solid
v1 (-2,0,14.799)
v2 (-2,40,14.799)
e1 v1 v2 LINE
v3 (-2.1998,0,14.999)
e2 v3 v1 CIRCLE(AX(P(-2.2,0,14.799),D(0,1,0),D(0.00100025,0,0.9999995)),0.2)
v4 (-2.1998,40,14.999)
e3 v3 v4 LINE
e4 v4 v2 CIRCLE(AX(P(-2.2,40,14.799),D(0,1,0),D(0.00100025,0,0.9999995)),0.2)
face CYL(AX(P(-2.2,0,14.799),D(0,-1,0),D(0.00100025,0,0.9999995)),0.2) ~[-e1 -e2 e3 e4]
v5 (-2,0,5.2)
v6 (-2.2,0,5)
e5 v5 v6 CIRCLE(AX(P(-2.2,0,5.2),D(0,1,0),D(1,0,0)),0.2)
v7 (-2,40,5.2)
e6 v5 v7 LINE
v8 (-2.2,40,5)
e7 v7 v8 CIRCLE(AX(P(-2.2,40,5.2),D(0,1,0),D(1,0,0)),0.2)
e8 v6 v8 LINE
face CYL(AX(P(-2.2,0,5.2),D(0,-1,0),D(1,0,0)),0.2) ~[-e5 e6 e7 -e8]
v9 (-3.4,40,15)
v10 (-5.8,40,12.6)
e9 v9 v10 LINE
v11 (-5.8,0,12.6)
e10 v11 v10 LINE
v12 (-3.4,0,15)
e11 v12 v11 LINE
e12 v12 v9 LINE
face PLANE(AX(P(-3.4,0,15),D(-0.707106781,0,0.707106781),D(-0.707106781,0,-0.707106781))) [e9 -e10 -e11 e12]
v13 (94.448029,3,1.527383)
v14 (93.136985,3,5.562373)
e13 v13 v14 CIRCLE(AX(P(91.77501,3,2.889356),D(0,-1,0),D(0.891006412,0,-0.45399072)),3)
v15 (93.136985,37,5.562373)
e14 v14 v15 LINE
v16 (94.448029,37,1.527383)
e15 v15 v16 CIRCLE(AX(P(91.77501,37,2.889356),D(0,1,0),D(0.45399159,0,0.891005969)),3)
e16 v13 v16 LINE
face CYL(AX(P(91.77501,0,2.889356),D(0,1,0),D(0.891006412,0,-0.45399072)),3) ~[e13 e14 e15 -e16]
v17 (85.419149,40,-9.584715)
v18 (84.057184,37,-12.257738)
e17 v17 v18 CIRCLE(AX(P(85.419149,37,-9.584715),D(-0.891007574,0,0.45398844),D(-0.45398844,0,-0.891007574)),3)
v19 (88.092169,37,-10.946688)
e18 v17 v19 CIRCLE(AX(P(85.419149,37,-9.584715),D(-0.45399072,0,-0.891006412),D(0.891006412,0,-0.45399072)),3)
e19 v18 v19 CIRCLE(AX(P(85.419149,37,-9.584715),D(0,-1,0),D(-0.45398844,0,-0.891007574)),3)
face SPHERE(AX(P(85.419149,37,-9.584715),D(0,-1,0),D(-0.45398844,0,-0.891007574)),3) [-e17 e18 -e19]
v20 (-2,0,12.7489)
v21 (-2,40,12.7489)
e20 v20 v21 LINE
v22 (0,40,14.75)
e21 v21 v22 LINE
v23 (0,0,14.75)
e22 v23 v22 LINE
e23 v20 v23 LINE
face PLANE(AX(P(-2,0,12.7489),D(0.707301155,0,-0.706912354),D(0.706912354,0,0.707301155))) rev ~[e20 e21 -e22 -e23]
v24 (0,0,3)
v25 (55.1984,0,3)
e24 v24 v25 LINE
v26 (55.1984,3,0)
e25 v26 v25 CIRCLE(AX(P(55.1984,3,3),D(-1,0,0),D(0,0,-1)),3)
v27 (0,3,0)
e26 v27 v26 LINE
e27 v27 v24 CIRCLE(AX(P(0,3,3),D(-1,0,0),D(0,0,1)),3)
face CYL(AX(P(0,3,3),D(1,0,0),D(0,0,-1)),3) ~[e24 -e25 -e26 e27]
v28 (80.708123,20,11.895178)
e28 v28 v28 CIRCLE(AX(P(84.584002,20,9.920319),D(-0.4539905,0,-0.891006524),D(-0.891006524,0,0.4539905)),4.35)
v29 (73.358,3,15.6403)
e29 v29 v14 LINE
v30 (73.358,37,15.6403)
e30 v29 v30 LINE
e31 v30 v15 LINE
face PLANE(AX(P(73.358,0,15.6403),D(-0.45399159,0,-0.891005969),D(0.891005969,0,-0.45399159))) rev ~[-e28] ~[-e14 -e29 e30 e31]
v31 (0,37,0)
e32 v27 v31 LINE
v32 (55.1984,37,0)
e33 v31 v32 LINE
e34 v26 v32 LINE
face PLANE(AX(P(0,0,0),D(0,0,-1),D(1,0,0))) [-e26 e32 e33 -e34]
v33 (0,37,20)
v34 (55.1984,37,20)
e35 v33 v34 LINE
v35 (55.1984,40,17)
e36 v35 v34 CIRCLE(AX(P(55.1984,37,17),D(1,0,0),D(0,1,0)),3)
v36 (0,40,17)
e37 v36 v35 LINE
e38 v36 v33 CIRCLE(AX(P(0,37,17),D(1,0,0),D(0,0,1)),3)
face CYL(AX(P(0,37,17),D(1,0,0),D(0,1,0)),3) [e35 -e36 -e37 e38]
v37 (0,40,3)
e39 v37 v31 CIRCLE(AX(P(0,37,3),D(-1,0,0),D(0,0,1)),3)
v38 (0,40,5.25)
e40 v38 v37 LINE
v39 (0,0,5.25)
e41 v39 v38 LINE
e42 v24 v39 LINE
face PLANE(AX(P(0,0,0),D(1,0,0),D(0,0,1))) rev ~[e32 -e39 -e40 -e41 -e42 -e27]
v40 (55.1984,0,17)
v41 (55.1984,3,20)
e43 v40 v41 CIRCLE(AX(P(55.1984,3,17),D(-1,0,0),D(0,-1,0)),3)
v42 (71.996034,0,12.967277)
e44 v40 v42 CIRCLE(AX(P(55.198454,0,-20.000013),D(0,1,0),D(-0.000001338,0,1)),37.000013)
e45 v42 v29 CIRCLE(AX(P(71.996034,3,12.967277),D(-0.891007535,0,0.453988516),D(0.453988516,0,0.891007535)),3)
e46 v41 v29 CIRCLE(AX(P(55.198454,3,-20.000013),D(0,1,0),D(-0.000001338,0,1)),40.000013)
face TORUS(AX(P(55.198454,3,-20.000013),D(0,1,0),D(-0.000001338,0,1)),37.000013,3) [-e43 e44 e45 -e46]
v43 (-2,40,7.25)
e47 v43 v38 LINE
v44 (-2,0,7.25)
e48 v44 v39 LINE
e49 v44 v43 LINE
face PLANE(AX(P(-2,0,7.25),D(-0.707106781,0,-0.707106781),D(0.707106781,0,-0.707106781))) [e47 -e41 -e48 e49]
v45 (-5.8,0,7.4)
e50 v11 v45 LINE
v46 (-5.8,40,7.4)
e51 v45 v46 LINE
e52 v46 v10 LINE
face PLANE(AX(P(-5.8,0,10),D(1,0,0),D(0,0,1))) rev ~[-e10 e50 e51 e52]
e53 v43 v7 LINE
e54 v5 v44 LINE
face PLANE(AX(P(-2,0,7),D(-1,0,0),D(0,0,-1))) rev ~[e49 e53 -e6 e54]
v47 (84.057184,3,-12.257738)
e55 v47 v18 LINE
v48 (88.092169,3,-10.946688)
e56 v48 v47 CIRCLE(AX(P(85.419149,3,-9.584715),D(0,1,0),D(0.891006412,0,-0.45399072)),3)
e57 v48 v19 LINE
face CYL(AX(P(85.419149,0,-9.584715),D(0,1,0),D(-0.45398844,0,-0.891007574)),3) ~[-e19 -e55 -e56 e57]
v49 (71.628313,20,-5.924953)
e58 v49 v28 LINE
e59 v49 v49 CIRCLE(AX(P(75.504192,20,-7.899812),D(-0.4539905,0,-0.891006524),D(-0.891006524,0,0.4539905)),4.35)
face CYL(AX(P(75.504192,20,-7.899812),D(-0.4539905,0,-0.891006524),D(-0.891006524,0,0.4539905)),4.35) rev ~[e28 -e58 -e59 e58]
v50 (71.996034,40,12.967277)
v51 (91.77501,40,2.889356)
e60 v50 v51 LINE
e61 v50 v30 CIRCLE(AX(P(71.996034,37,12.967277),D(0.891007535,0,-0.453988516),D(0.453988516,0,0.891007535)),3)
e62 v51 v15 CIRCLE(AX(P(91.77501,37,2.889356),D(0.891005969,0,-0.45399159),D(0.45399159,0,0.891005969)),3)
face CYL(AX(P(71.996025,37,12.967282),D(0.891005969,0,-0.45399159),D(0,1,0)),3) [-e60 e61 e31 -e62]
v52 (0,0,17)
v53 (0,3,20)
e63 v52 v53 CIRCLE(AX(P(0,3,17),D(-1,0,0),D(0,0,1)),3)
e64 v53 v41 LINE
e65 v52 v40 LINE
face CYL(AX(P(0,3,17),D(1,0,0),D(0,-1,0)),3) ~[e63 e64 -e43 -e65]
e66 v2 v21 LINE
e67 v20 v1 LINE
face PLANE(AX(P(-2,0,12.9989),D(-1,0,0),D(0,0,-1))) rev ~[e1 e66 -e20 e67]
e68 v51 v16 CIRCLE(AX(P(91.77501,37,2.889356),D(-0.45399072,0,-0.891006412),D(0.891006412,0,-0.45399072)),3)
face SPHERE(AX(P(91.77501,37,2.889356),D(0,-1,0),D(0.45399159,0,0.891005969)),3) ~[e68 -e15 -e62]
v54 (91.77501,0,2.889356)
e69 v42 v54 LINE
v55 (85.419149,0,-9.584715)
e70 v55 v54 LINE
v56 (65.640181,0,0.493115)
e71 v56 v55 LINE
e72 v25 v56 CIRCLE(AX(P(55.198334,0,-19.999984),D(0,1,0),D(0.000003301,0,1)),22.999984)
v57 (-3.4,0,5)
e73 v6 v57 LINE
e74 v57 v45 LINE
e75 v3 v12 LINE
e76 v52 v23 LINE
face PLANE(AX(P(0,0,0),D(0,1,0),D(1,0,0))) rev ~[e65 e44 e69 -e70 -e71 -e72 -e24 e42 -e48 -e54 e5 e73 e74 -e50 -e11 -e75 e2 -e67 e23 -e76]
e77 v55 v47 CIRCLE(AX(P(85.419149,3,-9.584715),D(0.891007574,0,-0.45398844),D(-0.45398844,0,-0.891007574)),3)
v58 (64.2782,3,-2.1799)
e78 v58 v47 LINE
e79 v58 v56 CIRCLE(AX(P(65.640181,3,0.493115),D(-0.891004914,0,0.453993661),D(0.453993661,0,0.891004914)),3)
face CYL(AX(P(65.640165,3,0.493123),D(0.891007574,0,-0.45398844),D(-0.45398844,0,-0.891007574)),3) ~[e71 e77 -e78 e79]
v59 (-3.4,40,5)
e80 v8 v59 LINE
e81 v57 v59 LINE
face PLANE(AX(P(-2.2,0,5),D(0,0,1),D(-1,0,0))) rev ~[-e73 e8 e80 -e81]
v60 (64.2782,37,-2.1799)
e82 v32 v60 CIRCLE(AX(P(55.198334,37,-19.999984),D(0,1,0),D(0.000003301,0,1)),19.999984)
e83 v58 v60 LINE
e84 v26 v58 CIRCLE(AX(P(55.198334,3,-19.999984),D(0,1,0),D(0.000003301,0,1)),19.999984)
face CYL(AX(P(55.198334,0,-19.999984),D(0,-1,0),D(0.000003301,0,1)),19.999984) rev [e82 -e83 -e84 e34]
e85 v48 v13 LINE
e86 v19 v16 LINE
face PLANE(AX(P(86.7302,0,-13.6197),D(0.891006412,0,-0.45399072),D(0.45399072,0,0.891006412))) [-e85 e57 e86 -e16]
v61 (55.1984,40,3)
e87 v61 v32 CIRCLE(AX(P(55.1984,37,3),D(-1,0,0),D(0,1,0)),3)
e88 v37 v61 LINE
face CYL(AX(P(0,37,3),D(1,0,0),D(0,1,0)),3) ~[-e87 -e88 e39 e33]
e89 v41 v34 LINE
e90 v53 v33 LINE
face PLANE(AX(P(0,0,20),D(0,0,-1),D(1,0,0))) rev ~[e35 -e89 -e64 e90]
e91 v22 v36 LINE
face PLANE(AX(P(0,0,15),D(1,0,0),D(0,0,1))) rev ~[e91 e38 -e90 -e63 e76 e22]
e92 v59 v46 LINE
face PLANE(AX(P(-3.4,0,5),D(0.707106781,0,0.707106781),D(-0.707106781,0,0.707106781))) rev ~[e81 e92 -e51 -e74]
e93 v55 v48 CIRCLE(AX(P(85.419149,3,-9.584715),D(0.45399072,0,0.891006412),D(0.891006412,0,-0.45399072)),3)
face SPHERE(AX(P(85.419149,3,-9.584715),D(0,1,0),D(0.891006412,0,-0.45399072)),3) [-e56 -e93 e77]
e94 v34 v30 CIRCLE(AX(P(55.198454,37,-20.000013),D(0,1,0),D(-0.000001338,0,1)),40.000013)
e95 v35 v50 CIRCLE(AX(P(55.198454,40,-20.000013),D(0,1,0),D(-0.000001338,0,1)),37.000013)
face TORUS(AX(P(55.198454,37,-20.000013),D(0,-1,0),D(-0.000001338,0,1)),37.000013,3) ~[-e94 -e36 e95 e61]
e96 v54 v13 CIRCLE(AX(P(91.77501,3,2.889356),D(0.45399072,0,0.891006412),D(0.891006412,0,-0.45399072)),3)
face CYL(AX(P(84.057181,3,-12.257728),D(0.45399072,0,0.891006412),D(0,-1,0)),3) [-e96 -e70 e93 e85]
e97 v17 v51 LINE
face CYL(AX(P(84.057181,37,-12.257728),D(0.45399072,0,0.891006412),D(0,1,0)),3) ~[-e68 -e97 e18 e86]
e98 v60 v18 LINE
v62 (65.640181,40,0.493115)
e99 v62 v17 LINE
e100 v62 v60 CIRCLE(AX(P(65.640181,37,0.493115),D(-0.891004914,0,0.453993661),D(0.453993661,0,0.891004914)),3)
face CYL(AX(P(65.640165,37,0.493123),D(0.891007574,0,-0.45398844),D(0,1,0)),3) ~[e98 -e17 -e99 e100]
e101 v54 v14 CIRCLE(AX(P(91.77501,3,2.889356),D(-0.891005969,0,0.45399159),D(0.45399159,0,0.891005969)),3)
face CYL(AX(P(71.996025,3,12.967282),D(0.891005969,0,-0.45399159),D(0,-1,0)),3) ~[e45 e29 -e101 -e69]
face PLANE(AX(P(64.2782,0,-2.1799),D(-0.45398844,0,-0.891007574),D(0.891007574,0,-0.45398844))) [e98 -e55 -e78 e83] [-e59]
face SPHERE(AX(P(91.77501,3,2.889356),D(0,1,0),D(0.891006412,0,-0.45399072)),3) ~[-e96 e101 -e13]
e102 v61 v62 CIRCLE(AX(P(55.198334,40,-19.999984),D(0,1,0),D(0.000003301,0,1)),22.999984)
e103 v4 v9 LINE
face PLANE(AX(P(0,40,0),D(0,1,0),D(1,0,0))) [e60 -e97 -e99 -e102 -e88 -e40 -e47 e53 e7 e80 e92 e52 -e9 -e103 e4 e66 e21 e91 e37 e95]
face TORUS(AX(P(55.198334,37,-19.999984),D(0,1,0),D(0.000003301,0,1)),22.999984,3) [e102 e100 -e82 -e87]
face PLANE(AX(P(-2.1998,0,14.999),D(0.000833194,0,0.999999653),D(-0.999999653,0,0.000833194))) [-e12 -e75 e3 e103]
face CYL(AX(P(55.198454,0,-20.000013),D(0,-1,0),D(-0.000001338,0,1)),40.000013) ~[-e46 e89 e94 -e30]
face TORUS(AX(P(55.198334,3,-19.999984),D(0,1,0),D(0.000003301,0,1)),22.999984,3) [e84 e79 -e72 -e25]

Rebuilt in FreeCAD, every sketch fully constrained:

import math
import FreeCAD as App
import Part
import Sketcher

V = App.Vector
Q = App.Units.Quantity


def edges_at(feature, points):
    """Names of the edges that pass closest to the given points."""
    edges = feature.Shape.Edges
    near = lambda p: min(range(len(edges)), key=lambda i: edges[i].distToShape(Part.Vertex(*p))[0])
    return sorted({f"Edge{near(p) + 1}" for p in points})

doc = App.newDocument("Part")
body = doc.addObject("PartDesign::Body", "Body")

# Sketch on XZ plane
sketch1 = doc.addObject("Sketcher::SketchObject", "Sketch")
body.addObject(sketch1)
sketch1.AttachmentSupport = (doc.XZ_Plane, [""])
sketch1.MapMode = "FlatFace"
sketch1.addGeometry([
    Part.LineSegment(V(55.2, 0, 0), V(0, 0, 0)),  # 0
    Part.LineSegment(V(0, 0, 0), V(0, 5.25, 0)),  # 1
    Part.LineSegment(V(0, 5.25, 0), V(-2, 7.25, 0)),  # 2
    Part.LineSegment(V(-2, 7.25, 0), V(-2, 5.2, 0)),  # 3
    Part.ArcOfCircle(Part.Circle(V(-2.2, 5.2, 0), V(0, 0, 1), 0.2), math.radians(-90), math.radians(0)),  # 4
    Part.LineSegment(V(-2.2, 5, 0), V(-3.4, 5, 0)),  # 5
    Part.LineSegment(V(-3.4, 5, 0), V(-5.8, 7.4, 0)),  # 6
    Part.LineSegment(V(-5.8, 7.4, 0), V(-5.8, 12.6, 0)),  # 7
    Part.LineSegment(V(-5.8, 12.6, 0), V(-3.4, 15, 0)),  # 8
    Part.LineSegment(V(-3.4, 15, 0), V(-2.2, 15, 0)),  # 9
    Part.ArcOfCircle(Part.Circle(V(-2.2, 14.8, 0), V(0, 0, 1), 0.2), math.radians(0), math.radians(90)),  # 10
    Part.LineSegment(V(-2, 14.8, 0), V(-2, 12.75, 0)),  # 11
    Part.LineSegment(V(-2, 12.75, 0), V(0, 14.75, 0)),  # 12
    Part.LineSegment(V(0, 14.75, 0), V(0, 20, 0)),  # 13
    Part.LineSegment(V(0, 20, 0), V(55.2, 20, 0)),  # 14
    Part.ArcOfCircle(Part.Circle(V(55.2, -20, 0), V(0, 0, 1), 40), math.radians(63), math.radians(90)),  # 15
    Part.LineSegment(V(73.36, 15.64, 0), V(95.81, 4.2, 0)),  # 16
    Part.LineSegment(V(95.81, 4.2, 0), V(86.73, -13.62, 0)),  # 17
    Part.LineSegment(V(86.73, -13.62, 0), V(64.28, -2.18, 0)),  # 18
    Part.ArcOfCircle(Part.Circle(V(55.2, -20, 0), V(0, 0, 1), 20), math.radians(63), math.radians(90)),  # 19
], False)
sketch1.addConstraint([
    Sketcher.Constraint("Coincident", 0, 2, 1, 1),
    Sketcher.Constraint("Coincident", 1, 2, 2, 1),
    Sketcher.Constraint("Coincident", 2, 2, 3, 1),
    Sketcher.Constraint("Tangent", 3, 2, 4, 2),
    Sketcher.Constraint("Tangent", 4, 1, 5, 1),
    Sketcher.Constraint("Coincident", 5, 2, 6, 1),
    Sketcher.Constraint("Coincident", 6, 2, 7, 1),
    Sketcher.Constraint("Coincident", 7, 2, 8, 1),
    Sketcher.Constraint("Coincident", 8, 2, 9, 1),
    Sketcher.Constraint("Tangent", 9, 2, 10, 2),
    Sketcher.Constraint("Tangent", 10, 1, 11, 1),
    Sketcher.Constraint("Coincident", 11, 2, 12, 1),
    Sketcher.Constraint("Coincident", 12, 2, 13, 1),
    Sketcher.Constraint("Coincident", 13, 2, 14, 1),
    Sketcher.Constraint("Tangent", 14, 2, 15, 2),
    Sketcher.Constraint("Tangent", 15, 1, 16, 1),
    Sketcher.Constraint("Coincident", 16, 2, 17, 1),
    Sketcher.Constraint("Coincident", 17, 2, 18, 1),
    Sketcher.Constraint("Tangent", 18, 2, 19, 1),
    Sketcher.Constraint("Tangent", 19, 2, 0, 1),
    Sketcher.Constraint("Horizontal", 0),
    Sketcher.Constraint("Vertical", 1),
    Sketcher.Constraint("Vertical", 3),
    Sketcher.Constraint("Horizontal", 5),
    Sketcher.Constraint("Vertical", 7),
    Sketcher.Constraint("Vertical", 11),
    Sketcher.Constraint("Vertical", 13),
    Sketcher.Constraint("Horizontal", 14),
    Sketcher.Constraint("Coincident", 0, 2, -1, 1),
    Sketcher.Constraint("Coincident", 19, 3, 15, 3),
    Sketcher.Constraint("Equal", 4, 10),
    Sketcher.Constraint("PointOnObject", 12, 2, -2),
    Sketcher.Constraint("Parallel", 2, 6),
    Sketcher.Constraint("Perpendicular", 6, 8),
    Sketcher.Constraint("Parallel", 8, 12),
    Sketcher.Constraint("Perpendicular", 16, 17),
    Sketcher.Constraint("Perpendicular", 17, 18),
    Sketcher.Constraint("Vertical", 4, 3, 10, 3),
    Sketcher.Constraint("Vertical", 5, 2, 8, 2),
    Sketcher.Constraint("Vertical", 4, 1, 9, 2),
    Sketcher.Constraint("Equal", 3, 11),
    Sketcher.Constraint("Equal", 1, 13),
    Sketcher.Constraint("Equal", 6, 8),
    Sketcher.Constraint("Radius", 15, Q("40 mm")),
    Sketcher.Constraint("Radius", 19, Q("20 mm")),
    Sketcher.Constraint("Radius", 4, Q("0.2 mm")),
    Sketcher.Constraint("Angle", 18, Q("153.0001 deg")),
    Sketcher.Constraint("DistanceX", 2, 2, -1, 1, Q("2 mm")),
    Sketcher.Constraint("DistanceY", -1, 1, 4, 1, Q("5 mm")),
    Sketcher.Constraint("DistanceX", 5, 2, 3, 2, Q("1.4 mm")),
    Sketcher.Constraint("DistanceY", 4, 1, 1, 2, Q("0.25 mm")),
    Sketcher.Constraint("DistanceY", 7, 1, 7, 2, Q("5.2 mm")),
    Sketcher.Constraint("DistanceX", -1, 1, 16, 2, Q("95.81 mm")),
    Sketcher.Constraint("DistanceY", 17, 2, 15, 1, Q("29.26 mm")),
])
pad1 = doc.addObject("PartDesign::Pad", "Pad")
body.addObject(pad1)
pad1.Profile = sketch1
pad1.Length = 40
pad1.Reversed = True

# Sketch on an angled plane
sketch2 = doc.addObject("Sketcher::SketchObject", "Sketch001")
body.addObject(sketch2)
sketch2.Placement = App.Placement(V(12.3664, 0, 24.2705), App.Rotation(V(-0.891006524, 0, 0.4539905), V(0, 1, 0), V(-0.4539905, 0, -0.891006524), "ZXY"))
sketch2.addGeometry(Part.Circle(V(-70.9, 20, 0), V(0, 0, 1), 4.3), False)
sketch2.addConstraint([
    Sketcher.Constraint("Diameter", 0, Q("8.7 mm")),
    Sketcher.Constraint("DistanceY", -1, 1, 0, 3, Q("20 mm")),
    Sketcher.Constraint("DistanceX", 0, 3, -1, 1, Q("70.8612 mm")),
])
pocket1 = doc.addObject("PartDesign::Pocket", "Pocket")
body.addObject(pocket1)
pocket1.Profile = sketch2
pocket1.Length = 20
doc.recompute()

fillet = doc.addObject("PartDesign::Fillet", "Fillet")
body.addObject(fillet)
fillet.Base = (pocket1, edges_at(pocket1, [
    (27.599, 40, 20),
    (64.536, 40, 18.895),
    (84.584, 40, 9.92),
    (27.599, 0, 20),
    (64.536, 0, 18.895),
    (84.584, 0, 9.92),
    (75.504, 40, -7.9),
    (59.867, 40, -0.553),
    (27.599, 40, 0),
    (91.27, 40, -4.71),
    (95.81, 20, 4.2),
    (86.73, 20, -13.62),
    (91.27, 0, -4.71),
    (27.599, 0, 0),
    (59.867, 0, -0.553),
    (75.504, 0, -7.9),
]))
fillet.Radius = 3

doc.recompute()
